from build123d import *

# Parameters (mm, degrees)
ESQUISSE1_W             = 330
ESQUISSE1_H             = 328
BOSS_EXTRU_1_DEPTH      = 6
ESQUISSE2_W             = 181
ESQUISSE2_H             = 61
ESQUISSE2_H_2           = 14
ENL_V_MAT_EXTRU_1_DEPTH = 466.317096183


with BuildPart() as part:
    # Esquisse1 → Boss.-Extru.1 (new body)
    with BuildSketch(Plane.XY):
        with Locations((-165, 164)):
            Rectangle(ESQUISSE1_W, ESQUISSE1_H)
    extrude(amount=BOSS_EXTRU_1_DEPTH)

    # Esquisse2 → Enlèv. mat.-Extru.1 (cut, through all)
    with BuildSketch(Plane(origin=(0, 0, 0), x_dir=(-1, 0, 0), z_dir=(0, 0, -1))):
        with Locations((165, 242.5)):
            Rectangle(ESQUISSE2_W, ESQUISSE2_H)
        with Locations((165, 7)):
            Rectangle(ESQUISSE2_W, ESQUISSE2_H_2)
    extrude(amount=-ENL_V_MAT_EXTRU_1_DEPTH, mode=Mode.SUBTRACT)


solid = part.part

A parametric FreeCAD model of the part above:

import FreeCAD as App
import Part
import Sketcher
from FreeCAD import Vector
Q = App.Units.Quantity

doc = App.newDocument("Part")
body = doc.addObject("PartDesign::Body", "Body")

# Sketch on XY plane
sketch1 = doc.addObject("Sketcher::SketchObject", "Sketch")
body.addObject(sketch1)
sketch1.AttachmentSupport = (doc.XY_Plane, [""])
sketch1.MapMode = "FlatFace"
sketch1.addGeometry(Part.LineSegment(Vector(-330, 328, 0), Vector(-330, 0, 0)), False)
sketch1.addGeometry(Part.LineSegment(Vector(-330, 0, 0), Vector(0, 0, 0)), False)
sketch1.addGeometry(Part.LineSegment(Vector(0, 0, 0), Vector(0, 328, 0)), False)
sketch1.addGeometry(Part.LineSegment(Vector(0, 328, 0), Vector(-330, 328, 0)), False)
sketch1.addConstraint(Sketcher.Constraint("Coincident", 0, 2, 1, 1))
sketch1.addConstraint(Sketcher.Constraint("Coincident", 1, 2, 2, 1))
sketch1.addConstraint(Sketcher.Constraint("Coincident", 2, 2, 3, 1))
sketch1.addConstraint(Sketcher.Constraint("Coincident", 3, 2, 0, 1))
sketch1.addConstraint(Sketcher.Constraint("Vertical", 0))
sketch1.addConstraint(Sketcher.Constraint("Horizontal", 1))
sketch1.addConstraint(Sketcher.Constraint("Vertical", 2))
sketch1.addConstraint(Sketcher.Constraint("Horizontal", 3))
sketch1.addConstraint(Sketcher.Constraint("Coincident", 1, 2, -1, 1))
sketch1.addConstraint(Sketcher.Constraint("DistanceX", 1, 1, 1, 2, Q("330 mm")))
sketch1.addConstraint(Sketcher.Constraint("DistanceY", 0, 2, 0, 1, Q("328 mm")))
pad1 = doc.addObject("PartDesign::Pad", "Pad")
body.addObject(pad1)
pad1.Profile = sketch1
pad1.Length = 6

# Sketch on XY plane
sketch2 = doc.addObject("Sketcher::SketchObject", "Sketch001")
body.addObject(sketch2)
sketch2.AttachmentSupport = (doc.XY_Plane, [""])
sketch2.MapMode = "FlatFace"
sketch2.addGeometry(Part.LineSegment(Vector(-74.5, 273, 0), Vector(-74.5, 212, 0)), False)
sketch2.addGeometry(Part.LineSegment(Vector(-74.5, 212, 0), Vector(-255.5, 212, 0)), False)
sketch2.addGeometry(Part.LineSegment(Vector(-255.5, 212, 0), Vector(-255.5, 273, 0)), False)
sketch2.addGeometry(Part.LineSegment(Vector(-255.5, 273, 0), Vector(-74.5, 273, 0)), False)
sketch2.addGeometry(Part.LineSegment(Vector(-74.5, 14, 0), Vector(-74.5, 0, 0)), False)
sketch2.addGeometry(Part.LineSegment(Vector(-74.5, 0, 0), Vector(-255.5, 0, 0)), False)
sketch2.addGeometry(Part.LineSegment(Vector(-255.5, 0, 0), Vector(-255.5, 14, 0)), False)
sketch2.addGeometry(Part.LineSegment(Vector(-255.5, 14, 0), Vector(-74.5, 14, 0)), False)
sketch2.addConstraint(Sketcher.Constraint("Coincident", 0, 2, 1, 1))
sketch2.addConstraint(Sketcher.Constraint("Coincident", 1, 2, 2, 1))
sketch2.addConstraint(Sketcher.Constraint("Coincident", 2, 2, 3, 1))
sketch2.addConstraint(Sketcher.Constraint("Coincident", 3, 2, 0, 1))
sketch2.addConstraint(Sketcher.Constraint("Coincident", 4, 2, 5, 1))
sketch2.addConstraint(Sketcher.Constraint("Coincident", 5, 2, 6, 1))
sketch2.addConstraint(Sketcher.Constraint("Coincident", 6, 2, 7, 1))
sketch2.addConstraint(Sketcher.Constraint("Coincident", 7, 2, 4, 1))
sketch2.addConstraint(Sketcher.Constraint("Vertical", 0))
sketch2.addConstraint(Sketcher.Constraint("Horizontal", 1))
sketch2.addConstraint(Sketcher.Constraint("Vertical", 2))
sketch2.addConstraint(Sketcher.Constraint("Horizontal", 3))
sketch2.addConstraint(Sketcher.Constraint("Vertical", 4))
sketch2.addConstraint(Sketcher.Constraint("Horizontal", 5))
sketch2.addConstraint(Sketcher.Constraint("Vertical", 6))
sketch2.addConstraint(Sketcher.Constraint("Horizontal", 7))
sketch2.addConstraint(Sketcher.Constraint("PointOnObject", 4, 2, -1))
sketch2.addConstraint(Sketcher.Constraint("Vertical", 3, 2, 4, 2))
sketch2.addConstraint(Sketcher.Constraint("Vertical", 2, 2, 5, 2))
sketch2.addConstraint(Sketcher.Constraint("DistanceX", 1, 2, 1, 1, Q("181 mm")))
sketch2.addConstraint(Sketcher.Constraint("DistanceY", 0, 2, 0, 1, Q("61 mm")))
sketch2.addConstraint(Sketcher.Constraint("DistanceY", 4, 2, 4, 1, Q("14 mm")))
sketch2.addConstraint(Sketcher.Constraint("DistanceY", -1, 1, 0, 2, Q("212 mm")))
sketch2.addConstraint(Sketcher.Constraint("DistanceX", 0, 2, -1, 1, Q("74.5 mm")))
pocket1 = doc.addObject("PartDesign::Pocket", "Pocket")
body.addObject(pocket1)
pocket1.Profile = sketch2
pocket1.Type = "ThroughAll"
pocket1.Reversed = True

doc.recompute()
